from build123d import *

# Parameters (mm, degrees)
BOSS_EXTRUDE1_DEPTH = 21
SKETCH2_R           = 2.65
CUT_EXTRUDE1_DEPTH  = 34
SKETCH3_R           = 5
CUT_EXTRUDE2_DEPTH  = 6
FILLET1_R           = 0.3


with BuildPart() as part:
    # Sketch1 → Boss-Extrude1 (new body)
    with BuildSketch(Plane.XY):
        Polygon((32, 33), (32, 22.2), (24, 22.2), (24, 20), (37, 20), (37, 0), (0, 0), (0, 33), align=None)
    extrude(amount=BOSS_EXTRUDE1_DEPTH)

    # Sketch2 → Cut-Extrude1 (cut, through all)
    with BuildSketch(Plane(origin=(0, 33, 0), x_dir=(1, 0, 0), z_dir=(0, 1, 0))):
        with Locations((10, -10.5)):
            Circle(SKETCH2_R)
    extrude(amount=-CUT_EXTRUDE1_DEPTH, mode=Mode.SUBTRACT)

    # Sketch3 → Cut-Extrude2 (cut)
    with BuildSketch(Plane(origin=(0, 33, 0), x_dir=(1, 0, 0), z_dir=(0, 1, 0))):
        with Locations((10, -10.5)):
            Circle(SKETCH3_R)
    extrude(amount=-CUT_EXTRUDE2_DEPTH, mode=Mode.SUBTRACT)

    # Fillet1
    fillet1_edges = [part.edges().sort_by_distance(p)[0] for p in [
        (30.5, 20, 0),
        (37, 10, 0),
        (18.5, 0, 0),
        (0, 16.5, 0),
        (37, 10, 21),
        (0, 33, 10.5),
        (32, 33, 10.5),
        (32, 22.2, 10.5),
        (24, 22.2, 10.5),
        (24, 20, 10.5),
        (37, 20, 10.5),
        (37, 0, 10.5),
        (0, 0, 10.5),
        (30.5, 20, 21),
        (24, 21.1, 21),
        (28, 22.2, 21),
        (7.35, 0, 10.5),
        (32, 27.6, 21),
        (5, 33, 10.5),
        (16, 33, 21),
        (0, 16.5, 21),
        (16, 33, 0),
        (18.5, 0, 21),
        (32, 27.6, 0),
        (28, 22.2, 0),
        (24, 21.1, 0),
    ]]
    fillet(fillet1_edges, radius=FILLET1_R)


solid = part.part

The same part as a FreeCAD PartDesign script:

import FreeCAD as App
import Part
import Sketcher
from FreeCAD import Vector


def edges_at(feature, points):
    """Names of the edges that pass closest to the given points."""
    edges = feature.Shape.Edges
    near = lambda p: min(range(len(edges)), key=lambda i: edges[i].distToShape(Part.Vertex(*p))[0])
    return sorted({f"Edge{near(p) + 1}" for p in points})


def add_polygon(sketch, points):
    """Adds a closed chain of lines whose ends are joined by coincident constraints."""
    first, n = sketch.GeometryCount, len(points)
    for a, b in zip(points, points[1:] + points[:1]):
        sketch.addGeometry(Part.LineSegment(App.Vector(*a, 0), App.Vector(*b, 0)), False)
    for i in range(n):
        sketch.addConstraint(Sketcher.Constraint("Coincident", first + i, 2, first + (i + 1) % n, 1))

doc = App.newDocument("Part")
params = doc.addObject("Spreadsheet::Sheet", "Params")
for row, (alias, value) in enumerate([
    ("sketch1_width", "32 mm"),
    ("sketch1_width2", "37 mm"),
    ("sketch1_width3", "13 mm"),
    ("sketch1_height", "33 mm"),
    ("sketch1_height2", "20 mm"),
    ("pad1_length", "21 mm"),
    ("sketch2_diameter", "5.3 mm"),
    ("sketch3_diameter", "10 mm"),
    ("pocket2_length", "6 mm"),
    ("fillet_radius", "0.3 mm"),
], start=1):
    params.set(f"A{row}", alias)
    params.set(f"B{row}", "=" + value)
    params.setAlias(f"B{row}", alias)

body = doc.addObject("PartDesign::Body", "Body")

sketch1 = body.newObject("Sketcher::SketchObject", "Sketch")
sketch1.AttachmentSupport = (doc.getObject("XY_Plane"), [""])
sketch1.MapMode = "FlatFace"
add_polygon(sketch1, [(32, 22.2), (32, 33), (0, 33), (0, 0), (37, 0), (37, 20), (24, 20), (24, 22.2)])
sketch1.addConstraint(Sketcher.Constraint("Vertical", 0))
sketch1.addConstraint(Sketcher.Constraint("Horizontal", 1))
sketch1.addConstraint(Sketcher.Constraint("Vertical", 2))
sketch1.addConstraint(Sketcher.Constraint("Horizontal", 3))
sketch1.addConstraint(Sketcher.Constraint("Vertical", 4))
sketch1.addConstraint(Sketcher.Constraint("Horizontal", 5))
sketch1.addConstraint(Sketcher.Constraint("Vertical", 6))
sketch1.addConstraint(Sketcher.Constraint("Horizontal", 7))
sketch1.addConstraint(Sketcher.Constraint("Coincident", 2, 2, -1, 1))
sketch1.addConstraint(Sketcher.Constraint("DistanceX", 1, 2, 1, 1, 32.0))
sketch1.addConstraint(Sketcher.Constraint("DistanceX", 3, 1, 3, 2, 37.0))
sketch1.addConstraint(Sketcher.Constraint("DistanceX", 5, 2, 5, 1, 13.0))
sketch1.addConstraint(Sketcher.Constraint("DistanceY", 2, 2, 2, 1, 33.0))
sketch1.addConstraint(Sketcher.Constraint("DistanceY", 4, 1, 4, 2, 20.0))
sketch1.addConstraint(Sketcher.Constraint("DistanceY", 0, 1, 0, 2, 10.8))
sketch1.setExpression("Constraints[17]", "Params.sketch1_width")
sketch1.setExpression("Constraints[18]", "Params.sketch1_width2")
sketch1.setExpression("Constraints[19]", "Params.sketch1_width3")
sketch1.setExpression("Constraints[20]", "Params.sketch1_height")
sketch1.setExpression("Constraints[21]", "Params.sketch1_height2")
pad1 = body.newObject("PartDesign::Pad", "Pad")
pad1.Profile = sketch1
pad1.setExpression("Length", "Params.pad1_length")

sketch2 = body.newObject("Sketcher::SketchObject", "Sketch001")
sketch2.AttachmentSupport = (doc.getObject("XZ_Plane"), [""])
sketch2.MapMode = "FlatFace"
sketch2.AttachmentOffset = App.Placement(Vector(0, 0, -33), App.Rotation())
sketch2.addGeometry(Part.Circle(Vector(10, 10.5, 0), Vector(0, 0, 1), 2.65), False)
sketch2.addConstraint(Sketcher.Constraint("Diameter", 0, 5.3))
sketch2.addConstraint(Sketcher.Constraint("DistanceX", -1, 1, 0, 3, 10.0))
sketch2.addConstraint(Sketcher.Constraint("DistanceY", -1, 1, 0, 3, 10.5))
sketch2.setExpression("Constraints[0]", "Params.sketch2_diameter")
pocket1 = body.newObject("PartDesign::Pocket", "Pocket")
pocket1.Profile = sketch2
pocket1.Type = "ThroughAll"
pocket1.Reversed = True

sketch3 = body.newObject("Sketcher::SketchObject", "Sketch002")
sketch3.AttachmentSupport = (doc.getObject("XZ_Plane"), [""])
sketch3.MapMode = "FlatFace"
sketch3.AttachmentOffset = App.Placement(Vector(0, 0, -33), App.Rotation())
sketch3.addGeometry(Part.Circle(Vector(10, 10.5, 0), Vector(0, 0, 1), 5), False)
sketch3.addConstraint(Sketcher.Constraint("Diameter", 0, 10.0))
sketch3.addConstraint(Sketcher.Constraint("DistanceX", -1, 1, 0, 3, 10.0))
sketch3.addConstraint(Sketcher.Constraint("DistanceY", -1, 1, 0, 3, 10.5))
sketch3.setExpression("Constraints[0]", "Params.sketch3_diameter")
pocket2 = body.newObject("PartDesign::Pocket", "Pocket001")
pocket2.Profile = sketch3
pocket2.setExpression("Length", "Params.pocket2_length")
pocket2.Reversed = True
doc.recompute()

fillet = body.newObject("PartDesign::Fillet", "Fillet")
fillet.Base = (pocket2, edges_at(pocket2, [
    (30.5, 20, 0),
    (37, 10, 0),
    (18.5, 0, 0),
    (0, 16.5, 0),
    (37, 10, 21),
    (0, 33, 10.5),
    (32, 33, 10.5),
    (32, 22.2, 10.5),
    (24, 22.2, 10.5),
    (24, 20, 10.5),
    (37, 20, 10.5),
    (37, 0, 10.5),
    (0, 0, 10.5),
    (30.5, 20, 21),
    (24, 21.1, 21),
    (28, 22.2, 21),
    (7.35, 0, 10.5),
    (32, 27.6, 21),
    (5, 33, 10.5),
    (16, 33, 21),
    (0, 16.5, 21),
    (16, 33, 0),
    (18.5, 0, 21),
    (32, 27.6, 0),
    (28, 22.2, 0),
    (24, 21.1, 0),
]))
fillet.setExpression("Radius", "Params.fillet_radius")

doc.recompute()
